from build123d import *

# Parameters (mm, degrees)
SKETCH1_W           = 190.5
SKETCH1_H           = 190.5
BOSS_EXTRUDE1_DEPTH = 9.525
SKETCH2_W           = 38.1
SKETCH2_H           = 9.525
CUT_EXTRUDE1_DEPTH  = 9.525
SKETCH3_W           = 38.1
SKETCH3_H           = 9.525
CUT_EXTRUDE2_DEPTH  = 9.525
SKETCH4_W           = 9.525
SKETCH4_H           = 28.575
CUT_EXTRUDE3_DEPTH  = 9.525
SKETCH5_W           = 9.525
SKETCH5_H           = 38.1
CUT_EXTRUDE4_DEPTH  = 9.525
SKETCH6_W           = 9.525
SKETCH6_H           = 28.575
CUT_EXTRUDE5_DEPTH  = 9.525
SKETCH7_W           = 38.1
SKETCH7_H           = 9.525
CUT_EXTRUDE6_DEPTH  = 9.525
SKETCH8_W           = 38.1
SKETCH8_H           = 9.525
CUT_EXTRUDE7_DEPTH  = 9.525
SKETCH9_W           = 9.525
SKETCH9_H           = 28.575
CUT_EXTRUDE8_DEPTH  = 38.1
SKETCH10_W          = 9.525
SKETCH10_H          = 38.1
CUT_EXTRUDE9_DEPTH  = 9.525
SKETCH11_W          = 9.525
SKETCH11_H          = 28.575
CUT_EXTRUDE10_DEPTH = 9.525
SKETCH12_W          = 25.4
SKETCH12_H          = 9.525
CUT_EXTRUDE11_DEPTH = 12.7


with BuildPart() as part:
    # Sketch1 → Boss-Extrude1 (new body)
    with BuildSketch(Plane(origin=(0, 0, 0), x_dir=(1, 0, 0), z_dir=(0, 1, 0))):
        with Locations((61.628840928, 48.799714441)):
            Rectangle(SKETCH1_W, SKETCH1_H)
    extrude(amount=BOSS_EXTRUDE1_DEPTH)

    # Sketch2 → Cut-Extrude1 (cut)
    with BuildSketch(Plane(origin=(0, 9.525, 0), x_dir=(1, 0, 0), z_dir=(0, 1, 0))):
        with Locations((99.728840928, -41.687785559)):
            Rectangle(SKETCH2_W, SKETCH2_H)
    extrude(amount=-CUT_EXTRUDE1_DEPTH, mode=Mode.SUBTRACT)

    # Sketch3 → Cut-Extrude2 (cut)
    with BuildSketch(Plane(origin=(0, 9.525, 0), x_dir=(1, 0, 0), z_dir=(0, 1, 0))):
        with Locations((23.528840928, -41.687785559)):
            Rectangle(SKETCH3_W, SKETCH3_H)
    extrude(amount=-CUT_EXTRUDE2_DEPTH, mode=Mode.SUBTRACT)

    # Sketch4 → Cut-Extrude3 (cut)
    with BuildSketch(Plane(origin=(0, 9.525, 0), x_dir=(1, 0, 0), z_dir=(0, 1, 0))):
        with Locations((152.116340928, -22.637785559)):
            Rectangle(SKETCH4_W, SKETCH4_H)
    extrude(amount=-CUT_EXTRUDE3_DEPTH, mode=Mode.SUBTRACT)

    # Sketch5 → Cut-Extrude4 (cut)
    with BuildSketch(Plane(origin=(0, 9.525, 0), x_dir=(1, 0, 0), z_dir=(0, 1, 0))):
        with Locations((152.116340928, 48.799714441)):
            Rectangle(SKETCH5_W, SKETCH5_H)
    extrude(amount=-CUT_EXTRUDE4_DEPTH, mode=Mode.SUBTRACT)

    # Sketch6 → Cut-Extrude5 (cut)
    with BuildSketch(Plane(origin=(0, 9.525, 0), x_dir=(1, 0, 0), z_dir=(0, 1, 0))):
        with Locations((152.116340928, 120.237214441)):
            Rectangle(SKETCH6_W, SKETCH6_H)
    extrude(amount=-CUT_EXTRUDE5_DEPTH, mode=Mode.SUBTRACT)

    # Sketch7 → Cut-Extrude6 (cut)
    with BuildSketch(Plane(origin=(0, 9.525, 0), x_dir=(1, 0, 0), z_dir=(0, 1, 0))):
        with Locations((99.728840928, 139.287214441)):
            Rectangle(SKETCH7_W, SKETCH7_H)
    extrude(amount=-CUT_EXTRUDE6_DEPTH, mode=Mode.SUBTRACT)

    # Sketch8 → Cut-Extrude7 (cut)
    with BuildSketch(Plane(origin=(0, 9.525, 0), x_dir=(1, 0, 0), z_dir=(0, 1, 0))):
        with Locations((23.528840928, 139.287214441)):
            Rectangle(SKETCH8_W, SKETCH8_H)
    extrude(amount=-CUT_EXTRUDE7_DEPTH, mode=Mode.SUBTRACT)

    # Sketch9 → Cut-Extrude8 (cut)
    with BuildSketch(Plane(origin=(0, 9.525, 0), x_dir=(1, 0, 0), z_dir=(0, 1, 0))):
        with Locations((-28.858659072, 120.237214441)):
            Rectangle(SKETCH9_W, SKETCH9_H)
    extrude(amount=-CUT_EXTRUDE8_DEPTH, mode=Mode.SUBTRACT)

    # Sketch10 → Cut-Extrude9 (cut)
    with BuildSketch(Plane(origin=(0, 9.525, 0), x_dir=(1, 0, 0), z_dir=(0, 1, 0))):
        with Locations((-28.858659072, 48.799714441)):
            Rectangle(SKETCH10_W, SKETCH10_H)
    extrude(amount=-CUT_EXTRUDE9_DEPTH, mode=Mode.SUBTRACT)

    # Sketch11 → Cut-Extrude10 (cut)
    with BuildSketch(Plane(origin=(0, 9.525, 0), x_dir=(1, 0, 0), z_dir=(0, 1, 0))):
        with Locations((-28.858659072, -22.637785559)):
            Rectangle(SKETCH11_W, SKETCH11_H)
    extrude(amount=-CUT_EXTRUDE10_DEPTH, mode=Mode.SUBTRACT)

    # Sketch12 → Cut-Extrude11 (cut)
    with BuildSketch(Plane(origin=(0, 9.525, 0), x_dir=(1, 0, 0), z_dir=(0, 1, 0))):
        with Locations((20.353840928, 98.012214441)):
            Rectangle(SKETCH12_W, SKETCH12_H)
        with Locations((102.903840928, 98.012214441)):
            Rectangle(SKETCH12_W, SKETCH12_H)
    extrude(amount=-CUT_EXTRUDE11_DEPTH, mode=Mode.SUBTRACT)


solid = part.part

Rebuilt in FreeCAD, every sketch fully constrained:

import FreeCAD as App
import Part
import Sketcher
Q = App.Units.Quantity

doc = App.newDocument("Part")
params = doc.addObject("Spreadsheet::Sheet", "Params")
for row, (alias, value) in enumerate([
    ("sketch1_width", "7.5 in"),
    ("pad1_length", "0.375 in"),
    ("sketch2_width", "1.5 in"),
    ("sketch2_height", "0.375 in"),
    ("pocket1_length", "0.375 in"),
    ("sketch3_width", "1.5 in"),
    ("sketch3_height", "0.375 in"),
    ("pocket2_length", "0.375 in"),
    ("sketch4_width", "0.375 in"),
    ("sketch4_height", "1.125 in"),
    ("pocket3_length", "0.375 in"),
    ("sketch5_height", "1.5 in"),
    ("sketch5_width", "0.375 in"),
    ("pocket4_length", "0.375 in"),
    ("sketch6_width", "0.375 in"),
    ("sketch6_height", "1.125 in"),
    ("pocket5_length", "0.375 in"),
    ("sketch7_width", "1.5 in"),
    ("sketch7_height", "0.375 in"),
    ("pocket6_length", "0.375 in"),
    ("sketch8_width", "1.5 in"),
    ("sketch8_height", "0.375 in"),
    ("pocket7_length", "0.375 in"),
    ("sketch9_width", "0.375 in"),
    ("sketch9_height", "1.125 in"),
    ("pocket8_length", "1.5 in"),
    ("sketch10_height", "1.5 in"),
    ("sketch10_width", "0.375 in"),
    ("pocket9_length", "0.375 in"),
    ("sketch11_width", "0.375 in"),
    ("sketch11_height", "1.125 in"),
    ("pocket10_length", "0.375 in"),
    ("sketch12_width", "1 in"),
    ("sketch12_height", "0.375 in"),
    ("pocket11_length", "0.5 in"),
], start=1):
    params.set(f"A{row}", alias)
    params.set(f"B{row}", "=" + value)
    params.setAlias(f"B{row}", alias)

body = doc.addObject("PartDesign::Body", "Body")

sketch1 = body.newObject("Sketcher::SketchObject", "Sketch")
sketch1.AttachmentSupport = (doc.getObject("XZ_Plane"), [""])
sketch1.MapMode = "FlatFace"
sketch1.addGeometry([
    Part.LineSegment(App.Vector(-34, -144, 0), App.Vector(-34, 46, 0)),
    Part.LineSegment(App.Vector(-34, 46, 0), App.Vector(157, 46, 0)),
    Part.LineSegment(App.Vector(157, 46, 0), App.Vector(157, -144, 0)),
    Part.LineSegment(App.Vector(157, -144, 0), App.Vector(-34, -144, 0)),
], False)
sketch1.addConstraint([
    Sketcher.Constraint("Coincident", 0, 2, 1, 1),
    Sketcher.Constraint("Coincident", 1, 2, 2, 1),
    Sketcher.Constraint("Coincident", 2, 2, 3, 1),
    Sketcher.Constraint("Coincident", 3, 2, 0, 1),
    Sketcher.Constraint("Vertical", 0),
    Sketcher.Constraint("Horizontal", 1),
    Sketcher.Constraint("Vertical", 2),
    Sketcher.Constraint("Horizontal", 3),
    Sketcher.Constraint("Equal", 3, 0),
    Sketcher.Constraint("DistanceX", 1, 1, 1, 2, Q("7.5 in")),
    Sketcher.Constraint("DistanceX", 0, 2, -1, 1, 33.621159),
    Sketcher.Constraint("DistanceY", -1, 1, 0, 2, 46.450286),
])
sketch1.setExpression("Constraints[9]", "Params.sketch1_width")
pad1 = body.newObject("PartDesign::Pad", "Pad")
pad1.Profile = sketch1
pad1.setExpression("Length", "Params.pad1_length")
pad1.Reversed = True

sketch2 = body.newObject("Sketcher::SketchObject", "Sketch001")
sketch2.AttachmentSupport = (doc.getObject("XZ_Plane"), [""])
sketch2.MapMode = "FlatFace"
sketch2.AttachmentOffset = App.Placement(App.Vector(0, 0, -0.375 * 25.4), App.Rotation())
sketch2.addGeometry([
    Part.LineSegment(App.Vector(81, 37, 0), App.Vector(81, 46, 0)),
    Part.LineSegment(App.Vector(81, 46, 0), App.Vector(119, 46, 0)),
    Part.LineSegment(App.Vector(119, 46, 0), App.Vector(119, 37, 0)),
    Part.LineSegment(App.Vector(119, 37, 0), App.Vector(81, 37, 0)),
], False)
sketch2.addConstraint([
    Sketcher.Constraint("Coincident", 0, 2, 1, 1),
    Sketcher.Constraint("Coincident", 1, 2, 2, 1),
    Sketcher.Constraint("Coincident", 2, 2, 3, 1),
    Sketcher.Constraint("Coincident", 3, 2, 0, 1),
    Sketcher.Constraint("Vertical", 0),
    Sketcher.Constraint("Horizontal", 1),
    Sketcher.Constraint("Vertical", 2),
    Sketcher.Constraint("Horizontal", 3),
    Sketcher.Constraint("DistanceX", 1, 1, 1, 2, Q("1.5 in")),
    Sketcher.Constraint("DistanceY", 0, 1, 0, 2, Q("0.375 in")),
    Sketcher.Constraint("DistanceX", -1, 1, 0, 2, 80.678841),
    Sketcher.Constraint("DistanceY", -1, 1, 0, 2, 46.450286),
])
sketch2.setExpression("Constraints[8]", "Params.sketch2_width")
sketch2.setExpression("Constraints[9]", "Params.sketch2_height")
pocket1 = body.newObject("PartDesign::Pocket", "Pocket")
pocket1.Profile = sketch2
pocket1.setExpression("Length", "Params.pocket1_length")
pocket1.Reversed = True

sketch3 = body.newObject("Sketcher::SketchObject", "Sketch002")
sketch3.AttachmentSupport = (doc.getObject("XZ_Plane"), [""])
sketch3.MapMode = "FlatFace"
sketch3.AttachmentOffset = App.Placement(App.Vector(0, 0, -0.375 * 25.4), App.Rotation())
sketch3.addGeometry([
    Part.LineSegment(App.Vector(4, 37, 0), App.Vector(4, 46, 0)),
    Part.LineSegment(App.Vector(4, 46, 0), App.Vector(43, 46, 0)),
    Part.LineSegment(App.Vector(43, 46, 0), App.Vector(43, 37, 0)),
    Part.LineSegment(App.Vector(43, 37, 0), App.Vector(4, 37, 0)),
], False)
sketch3.addConstraint([
    Sketcher.Constraint("Coincident", 0, 2, 1, 1),
    Sketcher.Constraint("Coincident", 1, 2, 2, 1),
    Sketcher.Constraint("Coincident", 2, 2, 3, 1),
    Sketcher.Constraint("Coincident", 3, 2, 0, 1),
    Sketcher.Constraint("Vertical", 0),
    Sketcher.Constraint("Horizontal", 1),
    Sketcher.Constraint("Vertical", 2),
    Sketcher.Constraint("Horizontal", 3),
    Sketcher.Constraint("DistanceX", 1, 1, 1, 2, Q("1.5 in")),
    Sketcher.Constraint("DistanceY", 0, 1, 0, 2, Q("0.375 in")),
    Sketcher.Constraint("DistanceX", -1, 1, 0, 2, 4.478841),
    Sketcher.Constraint("DistanceY", -1, 1, 0, 2, 46.450286),
])
sketch3.setExpression("Constraints[8]", "Params.sketch3_width")
sketch3.setExpression("Constraints[9]", "Params.sketch3_height")
pocket2 = body.newObject("PartDesign::Pocket", "Pocket001")
pocket2.Profile = sketch3
pocket2.setExpression("Length", "Params.pocket2_length")
pocket2.Reversed = True

sketch4 = body.newObject("Sketcher::SketchObject", "Sketch003")
sketch4.AttachmentSupport = (doc.getObject("XZ_Plane"), [""])
sketch4.MapMode = "FlatFace"
sketch4.AttachmentOffset = App.Placement(App.Vector(0, 0, -0.375 * 25.4), App.Rotation())
sketch4.addGeometry([
    Part.LineSegment(App.Vector(147, 8, 0), App.Vector(147, 37, 0)),
    Part.LineSegment(App.Vector(147, 37, 0), App.Vector(157, 37, 0)),
    Part.LineSegment(App.Vector(157, 37, 0), App.Vector(157, 8, 0)),
    Part.LineSegment(App.Vector(157, 8, 0), App.Vector(147, 8, 0)),
], False)
sketch4.addConstraint([
    Sketcher.Constraint("Coincident", 0, 2, 1, 1),
    Sketcher.Constraint("Coincident", 1, 2, 2, 1),
    Sketcher.Constraint("Coincident", 2, 2, 3, 1),
    Sketcher.Constraint("Coincident", 3, 2, 0, 1),
    Sketcher.Constraint("Vertical", 0),
    Sketcher.Constraint("Horizontal", 1),
    Sketcher.Constraint("Vertical", 2),
    Sketcher.Constraint("Horizontal", 3),
    Sketcher.Constraint("DistanceX", 1, 1, 1, 2, Q("0.375 in")),
    Sketcher.Constraint("DistanceY", 0, 1, 0, 2, Q("1.125 in")),
    Sketcher.Constraint("DistanceX", -1, 1, 0, 2, 147.353841),
    Sketcher.Constraint("DistanceY", -1, 1, 0, 2, 36.925286),
])
sketch4.setExpression("Constraints[8]", "Params.sketch4_width")
sketch4.setExpression("Constraints[9]", "Params.sketch4_height")
pocket3 = body.newObject("PartDesign::Pocket", "Pocket002")
pocket3.Profile = sketch4
pocket3.setExpression("Length", "Params.pocket3_length")
pocket3.Reversed = True

sketch5 = body.newObject("Sketcher::SketchObject", "Sketch004")
sketch5.AttachmentSupport = (doc.getObject("XZ_Plane"), [""])
sketch5.MapMode = "FlatFace"
sketch5.AttachmentOffset = App.Placement(App.Vector(0, 0, -0.375 * 25.4), App.Rotation())
sketch5.addGeometry([
    Part.LineSegment(App.Vector(147, -68, 0), App.Vector(147, -30, 0)),
    Part.LineSegment(App.Vector(147, -30, 0), App.Vector(157, -30, 0)),
    Part.LineSegment(App.Vector(157, -30, 0), App.Vector(157, -68, 0)),
    Part.LineSegment(App.Vector(157, -68, 0), App.Vector(147, -68, 0)),
], False)
sketch5.addConstraint([
    Sketcher.Constraint("Coincident", 0, 2, 1, 1),
    Sketcher.Constraint("Coincident", 1, 2, 2, 1),
    Sketcher.Constraint("Coincident", 2, 2, 3, 1),
    Sketcher.Constraint("Coincident", 3, 2, 0, 1),
    Sketcher.Constraint("Vertical", 0),
    Sketcher.Constraint("Horizontal", 1),
    Sketcher.Constraint("Vertical", 2),
    Sketcher.Constraint("Horizontal", 3),
    Sketcher.Constraint("DistanceY", 0, 1, 0, 2, Q("1.5 in")),
    Sketcher.Constraint("DistanceX", 1, 1, 1, 2, Q("0.375 in")),
    Sketcher.Constraint("DistanceX", -1, 1, 0, 2, 147.353841),
    Sketcher.Constraint("DistanceY", 0, 2, -1, 1, 29.749714),
])
sketch5.setExpression("Constraints[8]", "Params.sketch5_height")
sketch5.setExpression("Constraints[9]", "Params.sketch5_width")
pocket4 = body.newObject("PartDesign::Pocket", "Pocket003")
pocket4.Profile = sketch5
pocket4.setExpression("Length", "Params.pocket4_length")
pocket4.Reversed = True

sketch6 = body.newObject("Sketcher::SketchObject", "Sketch005")
sketch6.AttachmentSupport = (doc.getObject("XZ_Plane"), [""])
sketch6.MapMode = "FlatFace"
sketch6.AttachmentOffset = App.Placement(App.Vector(0, 0, -0.375 * 25.4), App.Rotation())
sketch6.addGeometry([
    Part.LineSegment(App.Vector(147, -135, 0), App.Vector(147, -106, 0)),
    Part.LineSegment(App.Vector(147, -106, 0), App.Vector(157, -106, 0)),
    Part.LineSegment(App.Vector(157, -106, 0), App.Vector(157, -135, 0)),
    Part.LineSegment(App.Vector(157, -135, 0), App.Vector(147, -135, 0)),
], False)
sketch6.addConstraint([
    Sketcher.Constraint("Coincident", 0, 2, 1, 1),
    Sketcher.Constraint("Coincident", 1, 2, 2, 1),
    Sketcher.Constraint("Coincident", 2, 2, 3, 1),
    Sketcher.Constraint("Coincident", 3, 2, 0, 1),
    Sketcher.Constraint("Vertical", 0),
    Sketcher.Constraint("Horizontal", 1),
    Sketcher.Constraint("Vertical", 2),
    Sketcher.Constraint("Horizontal", 3),
    Sketcher.Constraint("DistanceX", 1, 1, 1, 2, Q("0.375 in")),
    Sketcher.Constraint("DistanceY", 0, 1, 0, 2, Q("1.125 in")),
    Sketcher.Constraint("DistanceX", -1, 1, 0, 2, 147.353841),
    Sketcher.Constraint("DistanceY", 0, 2, -1, 1, 105.949714),
])
sketch6.setExpression("Constraints[8]", "Params.sketch6_width")
sketch6.setExpression("Constraints[9]", "Params.sketch6_height")
pocket5 = body.newObject("PartDesign::Pocket", "Pocket004")
pocket5.Profile = sketch6
pocket5.setExpression("Length", "Params.pocket5_length")
pocket5.Reversed = True

sketch7 = body.newObject("Sketcher::SketchObject", "Sketch006")
sketch7.AttachmentSupport = (doc.getObject("XZ_Plane"), [""])
sketch7.MapMode = "FlatFace"
sketch7.AttachmentOffset = App.Placement(App.Vector(0, 0, -0.375 * 25.4), App.Rotation())
sketch7.addGeometry([
    Part.LineSegment(App.Vector(81, -144, 0), App.Vector(81, -135, 0)),
    Part.LineSegment(App.Vector(81, -135, 0), App.Vector(119, -135, 0)),
    Part.LineSegment(App.Vector(119, -135, 0), App.Vector(119, -144, 0)),
    Part.LineSegment(App.Vector(119, -144, 0), App.Vector(81, -144, 0)),
], False)
sketch7.addConstraint([
    Sketcher.Constraint("Coincident", 0, 2, 1, 1),
    Sketcher.Constraint("Coincident", 1, 2, 2, 1),
    Sketcher.Constraint("Coincident", 2, 2, 3, 1),
    Sketcher.Constraint("Coincident", 3, 2, 0, 1),
    Sketcher.Constraint("Vertical", 0),
    Sketcher.Constraint("Horizontal", 1),
    Sketcher.Constraint("Vertical", 2),
    Sketcher.Constraint("Horizontal", 3),
    Sketcher.Constraint("DistanceX", 1, 1, 1, 2, Q("1.5 in")),
    Sketcher.Constraint("DistanceY", 0, 1, 0, 2, Q("0.375 in")),
    Sketcher.Constraint("DistanceX", -1, 1, 0, 2, 80.678841),
    Sketcher.Constraint("DistanceY", 0, 2, -1, 1, 134.524714),
])
sketch7.setExpression("Constraints[8]", "Params.sketch7_width")
sketch7.setExpression("Constraints[9]", "Params.sketch7_height")
pocket6 = body.newObject("PartDesign::Pocket", "Pocket005")
pocket6.Profile = sketch7
pocket6.setExpression("Length", "Params.pocket6_length")
pocket6.Reversed = True

sketch8 = body.newObject("Sketcher::SketchObject", "Sketch007")
sketch8.AttachmentSupport = (doc.getObject("XZ_Plane"), [""])
sketch8.MapMode = "FlatFace"
sketch8.AttachmentOffset = App.Placement(App.Vector(0, 0, -0.375 * 25.4), App.Rotation())
sketch8.addGeometry([
    Part.LineSegment(App.Vector(4, -144, 0), App.Vector(4, -135, 0)),
    Part.LineSegment(App.Vector(4, -135, 0), App.Vector(43, -135, 0)),
    Part.LineSegment(App.Vector(43, -135, 0), App.Vector(43, -144, 0)),
    Part.LineSegment(App.Vector(43, -144, 0), App.Vector(4, -144, 0)),
], False)
sketch8.addConstraint([
    Sketcher.Constraint("Coincident", 0, 2, 1, 1),
    Sketcher.Constraint("Coincident", 1, 2, 2, 1),
    Sketcher.Constraint("Coincident", 2, 2, 3, 1),
    Sketcher.Constraint("Coincident", 3, 2, 0, 1),
    Sketcher.Constraint("Vertical", 0),
    Sketcher.Constraint("Horizontal", 1),
    Sketcher.Constraint("Vertical", 2),
    Sketcher.Constraint("Horizontal", 3),
    Sketcher.Constraint("DistanceX", 1, 1, 1, 2, Q("1.5 in")),
    Sketcher.Constraint("DistanceY", 0, 1, 0, 2, Q("0.375 in")),
    Sketcher.Constraint("DistanceX", -1, 1, 0, 2, 4.478841),
    Sketcher.Constraint("DistanceY", 0, 2, -1, 1, 134.524714),
])
sketch8.setExpression("Constraints[8]", "Params.sketch8_width")
sketch8.setExpression("Constraints[9]", "Params.sketch8_height")
pocket7 = body.newObject("PartDesign::Pocket", "Pocket006")
pocket7.Profile = sketch8
pocket7.setExpression("Length", "Params.pocket7_length")
pocket7.Reversed = True

sketch9 = body.newObject("Sketcher::SketchObject", "Sketch008")
sketch9.AttachmentSupport = (doc.getObject("XZ_Plane"), [""])
sketch9.MapMode = "FlatFace"
sketch9.AttachmentOffset = App.Placement(App.Vector(0, 0, -0.375 * 25.4), App.Rotation())
sketch9.addGeometry([
    Part.LineSegment(App.Vector(-34, -135, 0), App.Vector(-34, -106, 0)),
    Part.LineSegment(App.Vector(-34, -106, 0), App.Vector(-24, -106, 0)),
    Part.LineSegment(App.Vector(-24, -106, 0), App.Vector(-24, -135, 0)),
    Part.LineSegment(App.Vector(-24, -135, 0), App.Vector(-34, -135, 0)),
], False)
sketch9.addConstraint([
    Sketcher.Constraint("Coincident", 0, 2, 1, 1),
    Sketcher.Constraint("Coincident", 1, 2, 2, 1),
    Sketcher.Constraint("Coincident", 2, 2, 3, 1),
    Sketcher.Constraint("Coincident", 3, 2, 0, 1),
    Sketcher.Constraint("Vertical", 0),
    Sketcher.Constraint("Horizontal", 1),
    Sketcher.Constraint("Vertical", 2),
    Sketcher.Constraint("Horizontal", 3),
    Sketcher.Constraint("DistanceX", 1, 1, 1, 2, Q("0.375 in")),
    Sketcher.Constraint("DistanceY", 0, 1, 0, 2, Q("1.125 in")),
    Sketcher.Constraint("DistanceX", 0, 2, -1, 1, 33.621159),
    Sketcher.Constraint("DistanceY", 0, 2, -1, 1, 105.949714),
])
sketch9.setExpression("Constraints[8]", "Params.sketch9_width")
sketch9.setExpression("Constraints[9]", "Params.sketch9_height")
pocket8 = body.newObject("PartDesign::Pocket", "Pocket007")
pocket8.Profile = sketch9
pocket8.setExpression("Length", "Params.pocket8_length")
pocket8.Reversed = True

sketch10 = body.newObject("Sketcher::SketchObject", "Sketch009")
sketch10.AttachmentSupport = (doc.getObject("XZ_Plane"), [""])
sketch10.MapMode = "FlatFace"
sketch10.AttachmentOffset = App.Placement(App.Vector(0, 0, -0.375 * 25.4), App.Rotation())
sketch10.addGeometry([
    Part.LineSegment(App.Vector(-34, -68, 0), App.Vector(-34, -30, 0)),
    Part.LineSegment(App.Vector(-34, -30, 0), App.Vector(-24, -30, 0)),
    Part.LineSegment(App.Vector(-24, -30, 0), App.Vector(-24, -68, 0)),
    Part.LineSegment(App.Vector(-24, -68, 0), App.Vector(-34, -68, 0)),
], False)
sketch10.addConstraint([
    Sketcher.Constraint("Coincident", 0, 2, 1, 1),
    Sketcher.Constraint("Coincident", 1, 2, 2, 1),
    Sketcher.Constraint("Coincident", 2, 2, 3, 1),
    Sketcher.Constraint("Coincident", 3, 2, 0, 1),
    Sketcher.Constraint("Vertical", 0),
    Sketcher.Constraint("Horizontal", 1),
    Sketcher.Constraint("Vertical", 2),
    Sketcher.Constraint("Horizontal", 3),
    Sketcher.Constraint("DistanceY", 0, 1, 0, 2, Q("1.5 in")),
    Sketcher.Constraint("DistanceX", 1, 1, 1, 2, Q("0.375 in")),
    Sketcher.Constraint("DistanceX", 0, 2, -1, 1, 33.621159),
    Sketcher.Constraint("DistanceY", 0, 2, -1, 1, 29.749714),
])
sketch10.setExpression("Constraints[8]", "Params.sketch10_height")
sketch10.setExpression("Constraints[9]", "Params.sketch10_width")
pocket9 = body.newObject("PartDesign::Pocket", "Pocket008")
pocket9.Profile = sketch10
pocket9.setExpression("Length", "Params.pocket9_length")
pocket9.Reversed = True

sketch11 = body.newObject("Sketcher::SketchObject", "Sketch010")
sketch11.AttachmentSupport = (doc.getObject("XZ_Plane"), [""])
sketch11.MapMode = "FlatFace"
sketch11.AttachmentOffset = App.Placement(App.Vector(0, 0, -0.375 * 25.4), App.Rotation())
sketch11.addGeometry([
    Part.LineSegment(App.Vector(-34, 8, 0), App.Vector(-34, 37, 0)),
    Part.LineSegment(App.Vector(-34, 37, 0), App.Vector(-24, 37, 0)),
    Part.LineSegment(App.Vector(-24, 37, 0), App.Vector(-24, 8, 0)),
    Part.LineSegment(App.Vector(-24, 8, 0), App.Vector(-34, 8, 0)),
], False)
sketch11.addConstraint([
    Sketcher.Constraint("Coincident", 0, 2, 1, 1),
    Sketcher.Constraint("Coincident", 1, 2, 2, 1),
    Sketcher.Constraint("Coincident", 2, 2, 3, 1),
    Sketcher.Constraint("Coincident", 3, 2, 0, 1),
    Sketcher.Constraint("Vertical", 0),
    Sketcher.Constraint("Horizontal", 1),
    Sketcher.Constraint("Vertical", 2),
    Sketcher.Constraint("Horizontal", 3),
    Sketcher.Constraint("DistanceX", 1, 1, 1, 2, Q("0.375 in")),
    Sketcher.Constraint("DistanceY", 0, 1, 0, 2, Q("1.125 in")),
    Sketcher.Constraint("DistanceX", 0, 2, -1, 1, 33.621159),
    Sketcher.Constraint("DistanceY", -1, 1, 0, 2, 36.925286),
])
sketch11.setExpression("Constraints[8]", "Params.sketch11_width")
sketch11.setExpression("Constraints[9]", "Params.sketch11_height")
pocket10 = body.newObject("PartDesign::Pocket", "Pocket009")
pocket10.Profile = sketch11
pocket10.setExpression("Length", "Params.pocket10_length")
pocket10.Reversed = True

sketch12 = body.newObject("Sketcher::SketchObject", "Sketch011")
sketch12.AttachmentSupport = (doc.getObject("XZ_Plane"), [""])
sketch12.MapMode = "FlatFace"
sketch12.AttachmentOffset = App.Placement(App.Vector(0, 0, -0.375 * 25.4), App.Rotation())
sketch12.addGeometry([
    Part.LineSegment(App.Vector(8, -103, 0), App.Vector(8, -93, 0)),
    Part.LineSegment(App.Vector(8, -93, 0), App.Vector(33, -93, 0)),
    Part.LineSegment(App.Vector(33, -93, 0), App.Vector(33, -103, 0)),
    Part.LineSegment(App.Vector(33, -103, 0), App.Vector(8, -103, 0)),
    Part.LineSegment(App.Vector(90, -103, 0), App.Vector(90, -93, 0)),
    Part.LineSegment(App.Vector(90, -93, 0), App.Vector(116, -93, 0)),
    Part.LineSegment(App.Vector(116, -93, 0), App.Vector(116, -103, 0)),
    Part.LineSegment(App.Vector(116, -103, 0), App.Vector(90, -103, 0)),
], False)
sketch12.addConstraint([
    Sketcher.Constraint("Coincident", 0, 2, 1, 1),
    Sketcher.Constraint("Coincident", 1, 2, 2, 1),
    Sketcher.Constraint("Coincident", 2, 2, 3, 1),
    Sketcher.Constraint("Coincident", 3, 2, 0, 1),
    Sketcher.Constraint("Coincident", 4, 2, 5, 1),
    Sketcher.Constraint("Coincident", 5, 2, 6, 1),
    Sketcher.Constraint("Coincident", 6, 2, 7, 1),
    Sketcher.Constraint("Coincident", 7, 2, 4, 1),
    Sketcher.Constraint("Vertical", 0),
    Sketcher.Constraint("Horizontal", 1),
    Sketcher.Constraint("Vertical", 2),
    Sketcher.Constraint("Horizontal", 3),
    Sketcher.Constraint("Vertical", 4),
    Sketcher.Constraint("Horizontal", 5),
    Sketcher.Constraint("Vertical", 6),
    Sketcher.Constraint("Horizontal", 7),
    Sketcher.Constraint("Horizontal", 1, 2, 4, 2),
    Sketcher.Constraint("Horizontal", 3, 2, 6, 2),
    Sketcher.Constraint("Equal", 3, 5),
    Sketcher.Constraint("DistanceX", 1, 1, 1, 2, Q("1 in")),
    Sketcher.Constraint("DistanceY", 0, 1, 0, 2, Q("0.375 in")),
    Sketcher.Constraint("DistanceX", 1, 2, 4, 2, Q("2.25 in")),
    Sketcher.Constraint("DistanceX", -1, 1, 0, 2, 7.653841),
    Sketcher.Constraint("DistanceY", 0, 2, -1, 1, 93.249714),
])
sketch12.setExpression("Constraints[19]", "Params.sketch12_width")
sketch12.setExpression("Constraints[20]", "Params.sketch12_height")
pocket11 = body.newObject("PartDesign::Pocket", "Pocket010")
pocket11.Profile = sketch12
pocket11.setExpression("Length", "Params.pocket11_length")
pocket11.Reversed = True

doc.recompute()
